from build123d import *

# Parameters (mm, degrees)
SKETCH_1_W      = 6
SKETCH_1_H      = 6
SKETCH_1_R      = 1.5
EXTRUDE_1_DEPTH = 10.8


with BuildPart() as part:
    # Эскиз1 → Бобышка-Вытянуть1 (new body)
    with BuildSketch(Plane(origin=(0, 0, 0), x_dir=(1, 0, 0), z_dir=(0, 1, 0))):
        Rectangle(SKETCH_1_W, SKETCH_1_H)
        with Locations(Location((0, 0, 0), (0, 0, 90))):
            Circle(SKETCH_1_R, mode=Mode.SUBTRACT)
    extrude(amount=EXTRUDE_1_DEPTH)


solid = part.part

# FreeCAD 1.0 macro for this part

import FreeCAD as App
import Part
import Sketcher
from FreeCAD import Vector


def add_polygon(sketch, points):
    """Adds a closed chain of lines whose ends are joined by coincident constraints."""
    first, n = sketch.GeometryCount, len(points)
    for a, b in zip(points, points[1:] + points[:1]):
        sketch.addGeometry(Part.LineSegment(App.Vector(*a, 0), App.Vector(*b, 0)), False)
    for i in range(n):
        sketch.addConstraint(Sketcher.Constraint("Coincident", first + i, 2, first + (i + 1) % n, 1))

doc = App.newDocument("Part")
body = doc.addObject("PartDesign::Body", "Body")

sketch1 = body.newObject("Sketcher::SketchObject", "Sketch")
sketch1.AttachmentSupport = (doc.getObject("XZ_Plane"), [""])
sketch1.MapMode = "FlatFace"
add_polygon(sketch1, [(-3, -3), (-3, 3), (3, 3), (3, -3)])
sketch1.addGeometry(Part.Circle(Vector(0, 0, 0), Vector(0, 0, 1), 1.5), False)
sketch1.addConstraint([
    Sketcher.Constraint("Vertical", 0),
    Sketcher.Constraint("Horizontal", 1),
    Sketcher.Constraint("Vertical", 2),
    Sketcher.Constraint("Horizontal", 3),
    Sketcher.Constraint("Coincident", 4, 3, -1, 1),
    Sketcher.Constraint("Symmetric", 0, 2, 2, 2, -1, 1),
    Sketcher.Constraint("Equal", 3, 0),
    Sketcher.Constraint("Diameter", 4, 3.0),
    Sketcher.Constraint("DistanceX", 1, 1, 1, 2, 6.0),
])
pad1 = body.newObject("PartDesign::Pad", "Pad")
pad1.Profile = sketch1
pad1.Length = 10.8
pad1.Reversed = True

doc.recompute()
